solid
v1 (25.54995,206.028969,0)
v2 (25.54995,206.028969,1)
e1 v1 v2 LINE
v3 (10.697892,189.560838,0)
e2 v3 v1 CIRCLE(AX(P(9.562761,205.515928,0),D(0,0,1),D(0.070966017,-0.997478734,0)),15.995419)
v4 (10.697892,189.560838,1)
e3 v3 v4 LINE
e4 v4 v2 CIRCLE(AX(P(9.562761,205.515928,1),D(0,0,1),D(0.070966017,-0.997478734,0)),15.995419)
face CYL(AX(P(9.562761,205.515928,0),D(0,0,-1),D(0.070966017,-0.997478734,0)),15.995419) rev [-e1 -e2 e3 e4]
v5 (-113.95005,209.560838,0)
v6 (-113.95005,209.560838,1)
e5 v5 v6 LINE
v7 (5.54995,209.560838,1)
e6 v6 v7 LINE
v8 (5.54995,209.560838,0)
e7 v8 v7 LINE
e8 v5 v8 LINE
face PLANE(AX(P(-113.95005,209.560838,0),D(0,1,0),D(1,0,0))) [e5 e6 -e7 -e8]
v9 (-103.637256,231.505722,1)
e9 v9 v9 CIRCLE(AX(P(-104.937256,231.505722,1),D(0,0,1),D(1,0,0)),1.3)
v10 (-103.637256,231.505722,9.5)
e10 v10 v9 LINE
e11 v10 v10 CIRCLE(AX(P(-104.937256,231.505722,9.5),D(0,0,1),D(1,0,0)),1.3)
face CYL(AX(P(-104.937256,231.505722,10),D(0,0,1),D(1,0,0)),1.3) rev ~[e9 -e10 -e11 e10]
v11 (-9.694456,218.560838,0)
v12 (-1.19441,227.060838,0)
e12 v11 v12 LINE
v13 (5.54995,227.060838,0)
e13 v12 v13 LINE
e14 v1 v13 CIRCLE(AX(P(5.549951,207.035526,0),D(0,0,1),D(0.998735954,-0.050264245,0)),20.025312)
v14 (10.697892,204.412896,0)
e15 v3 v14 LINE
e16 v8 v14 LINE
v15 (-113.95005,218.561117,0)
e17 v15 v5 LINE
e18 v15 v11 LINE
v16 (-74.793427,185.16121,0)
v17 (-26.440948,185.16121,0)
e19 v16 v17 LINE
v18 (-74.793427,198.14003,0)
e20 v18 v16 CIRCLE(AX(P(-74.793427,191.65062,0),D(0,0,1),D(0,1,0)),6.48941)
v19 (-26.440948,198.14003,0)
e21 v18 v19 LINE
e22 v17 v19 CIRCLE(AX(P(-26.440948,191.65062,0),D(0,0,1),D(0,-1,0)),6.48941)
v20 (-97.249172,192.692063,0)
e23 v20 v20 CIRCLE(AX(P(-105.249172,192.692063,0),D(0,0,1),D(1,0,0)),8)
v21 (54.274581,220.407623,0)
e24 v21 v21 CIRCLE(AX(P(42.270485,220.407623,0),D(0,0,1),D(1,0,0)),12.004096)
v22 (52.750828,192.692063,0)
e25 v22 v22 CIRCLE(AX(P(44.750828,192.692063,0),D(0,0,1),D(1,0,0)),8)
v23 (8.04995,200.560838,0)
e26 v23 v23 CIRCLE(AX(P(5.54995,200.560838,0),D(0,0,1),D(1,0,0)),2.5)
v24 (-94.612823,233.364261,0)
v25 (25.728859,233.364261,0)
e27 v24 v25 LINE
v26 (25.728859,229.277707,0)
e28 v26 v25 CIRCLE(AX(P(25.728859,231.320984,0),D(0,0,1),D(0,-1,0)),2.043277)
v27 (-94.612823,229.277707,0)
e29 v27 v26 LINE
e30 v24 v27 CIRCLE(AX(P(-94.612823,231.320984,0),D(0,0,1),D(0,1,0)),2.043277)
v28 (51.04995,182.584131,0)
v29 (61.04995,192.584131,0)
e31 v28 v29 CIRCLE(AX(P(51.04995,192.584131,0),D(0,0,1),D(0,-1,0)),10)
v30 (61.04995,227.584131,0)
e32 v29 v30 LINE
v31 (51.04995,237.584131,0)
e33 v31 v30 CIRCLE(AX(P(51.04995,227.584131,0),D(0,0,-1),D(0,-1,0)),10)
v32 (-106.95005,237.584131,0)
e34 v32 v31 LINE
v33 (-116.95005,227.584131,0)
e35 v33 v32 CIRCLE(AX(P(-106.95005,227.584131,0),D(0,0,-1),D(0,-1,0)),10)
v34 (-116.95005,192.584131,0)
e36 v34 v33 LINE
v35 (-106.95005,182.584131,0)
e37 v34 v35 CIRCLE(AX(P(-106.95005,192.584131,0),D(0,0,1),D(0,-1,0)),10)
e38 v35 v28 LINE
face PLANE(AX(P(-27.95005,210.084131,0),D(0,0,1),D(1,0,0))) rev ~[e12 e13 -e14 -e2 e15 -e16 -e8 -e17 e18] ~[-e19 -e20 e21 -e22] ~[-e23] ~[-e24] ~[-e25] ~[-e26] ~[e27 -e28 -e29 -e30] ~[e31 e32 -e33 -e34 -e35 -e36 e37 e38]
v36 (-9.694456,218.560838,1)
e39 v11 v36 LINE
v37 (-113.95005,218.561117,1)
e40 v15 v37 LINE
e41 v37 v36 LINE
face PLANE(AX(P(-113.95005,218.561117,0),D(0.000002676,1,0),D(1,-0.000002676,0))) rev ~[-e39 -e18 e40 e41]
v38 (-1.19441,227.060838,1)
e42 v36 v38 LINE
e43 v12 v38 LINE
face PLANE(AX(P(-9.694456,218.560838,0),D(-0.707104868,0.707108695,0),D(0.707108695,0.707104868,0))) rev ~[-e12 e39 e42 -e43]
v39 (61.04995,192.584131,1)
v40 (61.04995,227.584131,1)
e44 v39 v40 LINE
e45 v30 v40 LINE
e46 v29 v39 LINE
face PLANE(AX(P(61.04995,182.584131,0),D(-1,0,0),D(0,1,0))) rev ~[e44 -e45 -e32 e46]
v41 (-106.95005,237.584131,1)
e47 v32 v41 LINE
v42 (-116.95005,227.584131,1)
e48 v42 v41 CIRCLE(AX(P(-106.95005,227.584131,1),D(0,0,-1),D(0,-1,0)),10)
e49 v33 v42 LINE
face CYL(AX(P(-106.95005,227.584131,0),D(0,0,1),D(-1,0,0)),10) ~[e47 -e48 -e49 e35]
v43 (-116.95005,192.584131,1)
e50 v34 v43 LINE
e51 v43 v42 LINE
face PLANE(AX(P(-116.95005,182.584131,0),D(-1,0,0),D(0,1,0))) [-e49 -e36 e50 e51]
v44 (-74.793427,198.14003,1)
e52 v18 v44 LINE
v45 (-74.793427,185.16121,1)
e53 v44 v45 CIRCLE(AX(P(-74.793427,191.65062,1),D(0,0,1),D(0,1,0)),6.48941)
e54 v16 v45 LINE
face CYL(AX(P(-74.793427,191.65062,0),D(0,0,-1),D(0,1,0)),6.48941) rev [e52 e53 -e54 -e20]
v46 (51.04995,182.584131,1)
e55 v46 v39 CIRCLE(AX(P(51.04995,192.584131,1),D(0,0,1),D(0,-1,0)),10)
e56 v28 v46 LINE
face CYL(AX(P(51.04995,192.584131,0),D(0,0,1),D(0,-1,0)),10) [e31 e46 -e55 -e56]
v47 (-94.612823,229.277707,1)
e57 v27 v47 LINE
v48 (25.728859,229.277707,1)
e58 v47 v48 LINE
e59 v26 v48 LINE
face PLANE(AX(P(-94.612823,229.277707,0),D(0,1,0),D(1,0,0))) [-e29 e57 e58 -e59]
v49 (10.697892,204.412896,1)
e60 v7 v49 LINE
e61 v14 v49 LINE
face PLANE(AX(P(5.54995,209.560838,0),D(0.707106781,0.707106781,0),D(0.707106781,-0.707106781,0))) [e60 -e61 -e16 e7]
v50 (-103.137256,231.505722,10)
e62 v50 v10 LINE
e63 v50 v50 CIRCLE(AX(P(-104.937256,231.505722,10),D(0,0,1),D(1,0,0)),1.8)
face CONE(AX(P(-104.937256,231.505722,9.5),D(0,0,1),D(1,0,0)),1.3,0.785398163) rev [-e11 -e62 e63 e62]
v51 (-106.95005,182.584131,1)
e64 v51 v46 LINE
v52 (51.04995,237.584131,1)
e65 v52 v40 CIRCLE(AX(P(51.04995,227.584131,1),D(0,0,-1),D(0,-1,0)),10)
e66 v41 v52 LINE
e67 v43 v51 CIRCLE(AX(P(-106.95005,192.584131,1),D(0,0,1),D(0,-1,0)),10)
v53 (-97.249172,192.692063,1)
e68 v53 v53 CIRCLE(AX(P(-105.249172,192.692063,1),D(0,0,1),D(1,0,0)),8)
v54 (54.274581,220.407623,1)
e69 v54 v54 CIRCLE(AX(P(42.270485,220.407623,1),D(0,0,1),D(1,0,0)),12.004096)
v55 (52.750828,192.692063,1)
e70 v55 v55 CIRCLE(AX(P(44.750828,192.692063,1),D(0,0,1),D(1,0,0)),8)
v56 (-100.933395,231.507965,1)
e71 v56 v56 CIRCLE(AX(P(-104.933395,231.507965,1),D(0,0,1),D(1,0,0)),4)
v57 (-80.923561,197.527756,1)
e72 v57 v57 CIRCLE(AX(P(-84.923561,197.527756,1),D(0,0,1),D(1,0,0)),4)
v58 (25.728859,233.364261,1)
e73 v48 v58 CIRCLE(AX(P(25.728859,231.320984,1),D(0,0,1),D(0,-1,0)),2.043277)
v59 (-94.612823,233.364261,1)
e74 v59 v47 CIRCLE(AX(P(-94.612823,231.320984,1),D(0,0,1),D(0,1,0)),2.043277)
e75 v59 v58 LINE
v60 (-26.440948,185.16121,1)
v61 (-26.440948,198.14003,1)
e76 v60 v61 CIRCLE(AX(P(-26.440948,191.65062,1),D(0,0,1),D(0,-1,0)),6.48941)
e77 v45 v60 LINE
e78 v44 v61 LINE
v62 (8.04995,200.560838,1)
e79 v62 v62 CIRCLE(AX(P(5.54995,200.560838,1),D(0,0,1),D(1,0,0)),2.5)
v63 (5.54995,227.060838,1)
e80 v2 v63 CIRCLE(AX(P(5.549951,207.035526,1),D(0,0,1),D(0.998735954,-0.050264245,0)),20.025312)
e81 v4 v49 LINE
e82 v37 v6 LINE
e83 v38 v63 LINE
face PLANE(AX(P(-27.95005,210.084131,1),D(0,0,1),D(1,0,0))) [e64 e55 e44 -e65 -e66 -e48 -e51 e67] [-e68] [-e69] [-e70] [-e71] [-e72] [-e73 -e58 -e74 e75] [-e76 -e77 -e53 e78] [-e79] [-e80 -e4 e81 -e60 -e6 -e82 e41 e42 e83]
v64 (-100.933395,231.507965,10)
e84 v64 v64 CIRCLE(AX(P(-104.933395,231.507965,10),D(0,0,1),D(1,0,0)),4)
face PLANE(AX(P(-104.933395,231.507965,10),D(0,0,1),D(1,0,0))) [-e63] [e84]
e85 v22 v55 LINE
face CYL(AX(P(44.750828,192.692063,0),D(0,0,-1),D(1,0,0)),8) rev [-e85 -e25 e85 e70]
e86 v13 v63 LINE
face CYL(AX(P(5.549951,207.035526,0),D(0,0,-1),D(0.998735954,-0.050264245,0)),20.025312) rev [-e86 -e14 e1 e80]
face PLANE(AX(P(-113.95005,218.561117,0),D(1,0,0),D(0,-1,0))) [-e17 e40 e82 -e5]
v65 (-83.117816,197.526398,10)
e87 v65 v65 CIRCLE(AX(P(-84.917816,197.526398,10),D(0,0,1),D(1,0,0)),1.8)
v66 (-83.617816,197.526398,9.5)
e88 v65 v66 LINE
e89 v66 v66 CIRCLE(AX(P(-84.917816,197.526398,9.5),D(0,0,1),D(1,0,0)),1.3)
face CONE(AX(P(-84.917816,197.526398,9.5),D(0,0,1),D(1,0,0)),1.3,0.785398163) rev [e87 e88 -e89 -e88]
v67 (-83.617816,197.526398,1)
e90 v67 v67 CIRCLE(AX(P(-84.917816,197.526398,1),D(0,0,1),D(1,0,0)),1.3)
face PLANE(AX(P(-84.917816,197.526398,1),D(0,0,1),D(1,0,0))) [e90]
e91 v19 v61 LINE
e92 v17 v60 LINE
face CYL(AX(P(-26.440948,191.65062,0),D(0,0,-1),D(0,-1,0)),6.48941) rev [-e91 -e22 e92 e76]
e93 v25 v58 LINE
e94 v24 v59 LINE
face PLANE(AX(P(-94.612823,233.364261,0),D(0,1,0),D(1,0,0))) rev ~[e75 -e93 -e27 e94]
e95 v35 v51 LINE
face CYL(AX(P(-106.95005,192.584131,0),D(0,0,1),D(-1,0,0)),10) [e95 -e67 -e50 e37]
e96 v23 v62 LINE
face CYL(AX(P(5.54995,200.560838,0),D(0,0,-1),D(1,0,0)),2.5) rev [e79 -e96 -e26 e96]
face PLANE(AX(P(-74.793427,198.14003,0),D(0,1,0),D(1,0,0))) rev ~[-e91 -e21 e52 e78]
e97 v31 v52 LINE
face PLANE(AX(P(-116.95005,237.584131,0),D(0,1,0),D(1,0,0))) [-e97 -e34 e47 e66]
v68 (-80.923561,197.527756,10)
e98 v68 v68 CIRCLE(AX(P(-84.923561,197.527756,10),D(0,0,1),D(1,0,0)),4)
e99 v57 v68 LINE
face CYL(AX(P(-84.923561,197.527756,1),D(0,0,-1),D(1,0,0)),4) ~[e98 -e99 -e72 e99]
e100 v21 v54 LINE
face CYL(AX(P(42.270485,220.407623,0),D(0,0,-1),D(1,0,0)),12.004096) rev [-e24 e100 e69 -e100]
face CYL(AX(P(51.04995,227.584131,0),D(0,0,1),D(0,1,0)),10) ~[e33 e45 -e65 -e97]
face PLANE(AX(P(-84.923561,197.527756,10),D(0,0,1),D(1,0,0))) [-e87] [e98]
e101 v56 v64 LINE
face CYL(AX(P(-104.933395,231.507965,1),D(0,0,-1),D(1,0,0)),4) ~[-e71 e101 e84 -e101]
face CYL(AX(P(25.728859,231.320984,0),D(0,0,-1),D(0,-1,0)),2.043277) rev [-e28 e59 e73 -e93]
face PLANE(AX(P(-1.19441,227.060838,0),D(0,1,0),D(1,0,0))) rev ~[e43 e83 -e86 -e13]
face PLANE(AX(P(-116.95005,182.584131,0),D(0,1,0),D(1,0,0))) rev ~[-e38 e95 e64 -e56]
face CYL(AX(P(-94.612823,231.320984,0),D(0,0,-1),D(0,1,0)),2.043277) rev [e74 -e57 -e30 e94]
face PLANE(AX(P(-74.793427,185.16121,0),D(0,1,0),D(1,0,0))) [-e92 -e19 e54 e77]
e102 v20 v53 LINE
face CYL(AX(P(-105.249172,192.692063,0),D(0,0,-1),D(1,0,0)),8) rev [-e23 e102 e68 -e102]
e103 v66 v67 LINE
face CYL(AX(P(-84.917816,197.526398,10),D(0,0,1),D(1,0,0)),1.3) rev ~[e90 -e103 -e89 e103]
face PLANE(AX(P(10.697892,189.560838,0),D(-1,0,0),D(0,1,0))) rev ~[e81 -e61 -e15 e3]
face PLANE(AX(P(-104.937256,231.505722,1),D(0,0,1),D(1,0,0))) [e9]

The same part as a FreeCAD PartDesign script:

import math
import FreeCAD as App
import Part
import Sketcher
Q = App.Units.Quantity


def edges_at(feature, points):
    """Names of the edges that pass closest to the given points."""
    edges = feature.Shape.Edges
    near = lambda p: min(range(len(edges)), key=lambda i: edges[i].distToShape(Part.Vertex(*p))[0])
    return sorted({f"Edge{near(p) + 1}" for p in points})

doc = App.newDocument("Part")
body = doc.addObject("PartDesign::Body", "Body")

# Sketch on XY plane
sketch1 = doc.addObject("Sketcher::SketchObject", "Sketch")
body.addObject(sketch1)
sketch1.AttachmentSupport = (doc.XY_Plane, [""])
sketch1.MapMode = "FlatFace"
sketch1.addGeometry([
    Part.LineSegment(App.Vector(-117, 237.6, 0), App.Vector(-117, 182.6, 0)),  # 0
    Part.LineSegment(App.Vector(-117, 182.6, 0), App.Vector(61, 182.6, 0)),  # 1
    Part.LineSegment(App.Vector(61, 182.6, 0), App.Vector(61, 237.6, 0)),  # 2
    Part.LineSegment(App.Vector(61, 237.6, 0), App.Vector(-117, 237.6, 0)),  # 3
    Part.Circle(App.Vector(-105.2, 192.7, 0), App.Vector(0, 0, 1), 8),  # 4
    Part.ArcOfCircle(Part.Circle(App.Vector(-74.8, 191.7, 0), App.Vector(0, 0, 1), 6.5), math.radians(90), math.radians(270)),  # 5
    Part.LineSegment(App.Vector(-74.8, 198.1, 0), App.Vector(-26.4, 198.1, 0)),  # 6
    Part.ArcOfCircle(Part.Circle(App.Vector(-26.4, 191.7, 0), App.Vector(0, 0, 1), 6.5), math.radians(-90), math.radians(90)),  # 7
    Part.LineSegment(App.Vector(-26.4, 185.2, 0), App.Vector(-74.8, 185.2, 0)),  # 8
    Part.ArcOfCircle(Part.Circle(App.Vector(5.5, 207, 0), App.Vector(0, 0, 1), 20), math.radians(-3), math.radians(90)),  # 9
    Part.ArcOfCircle(Part.Circle(App.Vector(9.6, 205.5, 0), App.Vector(0, 0, 1), 16), math.radians(-86), math.radians(2)),  # 10
    Part.LineSegment(App.Vector(10.7, 189.6, 0), App.Vector(10.7, 204.4, 0)),  # 11
    Part.LineSegment(App.Vector(10.7, 204.4, 0), App.Vector(5.5, 209.6, 0)),  # 12
    Part.LineSegment(App.Vector(5.5, 209.6, 0), App.Vector(-114, 209.6, 0)),  # 13
    Part.LineSegment(App.Vector(-114, 209.6, 0), App.Vector(-114, 218.6, 0)),  # 14
    Part.LineSegment(App.Vector(-114, 218.6, 0), App.Vector(-9.7, 218.6, 0)),  # 15
    Part.LineSegment(App.Vector(-9.7, 218.6, 0), App.Vector(-1.2, 227.1, 0)),  # 16
    Part.LineSegment(App.Vector(-1.2, 227.1, 0), App.Vector(5.5, 227.1, 0)),  # 17
    Part.Circle(App.Vector(44.8, 192.7, 0), App.Vector(0, 0, 1), 8),  # 18
    Part.Circle(App.Vector(5.5, 200.6, 0), App.Vector(0, 0, 1), 2.5),  # 19
    Part.ArcOfCircle(Part.Circle(App.Vector(-94.6, 231.3, 0), App.Vector(0, 0, 1), 2), math.radians(90), math.radians(270)),  # 20
    Part.LineSegment(App.Vector(-94.6, 233.4, 0), App.Vector(25.7, 233.4, 0)),  # 21
    Part.ArcOfCircle(Part.Circle(App.Vector(25.7, 231.3, 0), App.Vector(0, 0, 1), 2), math.radians(-90), math.radians(90)),  # 22
    Part.LineSegment(App.Vector(25.7, 229.3, 0), App.Vector(-94.6, 229.3, 0)),  # 23
    Part.Circle(App.Vector(42.3, 220.4, 0), App.Vector(0, 0, 1), 12),  # 24
], False)
sketch1.addConstraint([
    Sketcher.Constraint("Coincident", 0, 2, 1, 1),
    Sketcher.Constraint("Coincident", 1, 2, 2, 1),
    Sketcher.Constraint("Coincident", 2, 2, 3, 1),
    Sketcher.Constraint("Coincident", 3, 2, 0, 1),
    Sketcher.Constraint("Tangent", 5, 1, 6, 1),
    Sketcher.Constraint("Tangent", 6, 2, 7, 2),
    Sketcher.Constraint("Tangent", 7, 1, 8, 1),
    Sketcher.Constraint("Tangent", 8, 2, 5, 2),
    Sketcher.Constraint("Coincident", 9, 1, 10, 2),
    Sketcher.Constraint("Coincident", 10, 1, 11, 1),
    Sketcher.Constraint("Coincident", 11, 2, 12, 1),
    Sketcher.Constraint("Coincident", 12, 2, 13, 1),
    Sketcher.Constraint("Coincident", 13, 2, 14, 1),
    Sketcher.Constraint("Coincident", 14, 2, 15, 1),
    Sketcher.Constraint("Coincident", 15, 2, 16, 1),
    Sketcher.Constraint("Coincident", 16, 2, 17, 1),
    Sketcher.Constraint("Tangent", 17, 2, 9, 2),
    Sketcher.Constraint("Tangent", 20, 1, 21, 1),
    Sketcher.Constraint("Tangent", 21, 2, 22, 2),
    Sketcher.Constraint("Tangent", 22, 1, 23, 1),
    Sketcher.Constraint("Tangent", 23, 2, 20, 2),
    Sketcher.Constraint("Vertical", 0),
    Sketcher.Constraint("Horizontal", 1),
    Sketcher.Constraint("Vertical", 2),
    Sketcher.Constraint("Horizontal", 3),
    Sketcher.Constraint("Horizontal", 6),
    Sketcher.Constraint("Horizontal", 8),
    Sketcher.Constraint("Vertical", 11),
    Sketcher.Constraint("Horizontal", 13),
    Sketcher.Constraint("Vertical", 14),
    Sketcher.Constraint("Horizontal", 17),
    Sketcher.Constraint("Horizontal", 21),
    Sketcher.Constraint("Horizontal", 23),
    Sketcher.Constraint("Equal", 4, 18),
    Sketcher.Constraint("Horizontal", 4, 3, 18, 3),
    Sketcher.Constraint("Vertical", 9, 3, 19, 3),
    Sketcher.Constraint("Vertical", 19, 3, 12, 2),
    Sketcher.Constraint("Diameter", 4, Q("16 mm")),
    Sketcher.Constraint("Diameter", 19, Q("5 mm")),
    Sketcher.Constraint("DistanceX", 1, 1, 1, 2, Q("178 mm")),
    Sketcher.Constraint("DistanceY", 0, 2, 0, 1, Q("55 mm")),
    Sketcher.Constraint("Angle", 12, Q("135 deg")),
    Sketcher.Constraint("DistanceX", 13, 2, 13, 1, Q("119.5 mm")),
    Sketcher.Constraint("DistanceX", 4, 3, 18, 3, Q("150 mm")),
    Sketcher.Constraint("DistanceX", 9, 3, 9, 1, Q("19.999999 mm")),
    Sketcher.Constraint("DistanceY", 10, 1, 19, 3, Q("11 mm")),
    Sketcher.Constraint("DistanceY", 19, 3, 12, 2, Q("9 mm")),
    Sketcher.Constraint("DistanceX", 0, 2, 13, 2, Q("3 mm")),
    Sketcher.Constraint("DistanceY", 12, 2, 15, 2, Q("9 mm")),
    Sketcher.Constraint("DistanceY", 15, 2, 16, 2, Q("8.5 mm")),
    Sketcher.Constraint("Radius", 5, Q("6.48941 mm")),
    Sketcher.Constraint("Radius", 9, Q("20.025312 mm")),
    Sketcher.Constraint("Radius", 10, Q("15.995419 mm")),
    Sketcher.Constraint("Diameter", 24, Q("24.008192 mm")),
    Sketcher.Constraint("Radius", 20, Q("2.043277 mm")),
    Sketcher.Constraint("DistanceX", 6, 1, 6, 2, Q("48.352479 mm")),
    Sketcher.Constraint("DistanceX", 17, 1, 17, 2, Q("6.74436 mm")),
    Sketcher.Constraint("DistanceY", 14, 1, 14, 2, Q("9.000279 mm")),
    Sketcher.Constraint("DistanceX", 7, 3, 9, 3, Q("31.990899 mm")),
    Sketcher.Constraint("DistanceX", 10, 3, 22, 3, Q("16.166098 mm")),
    Sketcher.Constraint("DistanceY", 0, 2, 5, 1, Q("15.555899 mm")),
    Sketcher.Constraint("DistanceY", 6, 2, 10, 3, Q("7.375898 mm")),
    Sketcher.Constraint("DistanceX", 16, 2, 11, 2, Q("11.892302 mm")),
    Sketcher.Constraint("DistanceX", 21, 1, 21, 2, Q("120.341682 mm")),
    Sketcher.Constraint("DistanceX", 4, 3, -1, 1, Q("105.249172 mm")),
    Sketcher.Constraint("DistanceY", -1, 1, 5, 3, Q("191.65062 mm")),
    Sketcher.Constraint("DistanceX", -1, 1, 9, 3, Q("5.549951 mm")),
    Sketcher.Constraint("DistanceY", -1, 1, 20, 1, Q("233.364261 mm")),
    Sketcher.Constraint("DistanceY", 4, 3, 20, 3, Q("38.628921 mm")),
    Sketcher.Constraint("DistanceY", 24, 3, 22, 3, Q("10.913361 mm")),
    Sketcher.Constraint("Distance", 15, Q("104.255594 mm")),
    Sketcher.Constraint("DistanceX", -1, 1, 24, 3, Q("42.270485 mm")),
])
pad1 = doc.addObject("PartDesign::Pad", "Pad")
body.addObject(pad1)
pad1.Profile = sketch1
pad1.Length = 1

# Sketch on XY plane
sketch2 = doc.addObject("Sketcher::SketchObject", "Sketch001")
body.addObject(sketch2)
sketch2.AttachmentSupport = (doc.XY_Plane, [""])
sketch2.MapMode = "FlatFace"
sketch2.AttachmentOffset = App.Placement(App.Vector(0, 0, 1), App.Rotation())
sketch2.addGeometry([
    Part.Circle(App.Vector(-84.9, 197.5, 0), App.Vector(0, 0, 1), 4),
    Part.Circle(App.Vector(-104.9, 231.5, 0), App.Vector(0, 0, 1), 4),
], False)
sketch2.addConstraint([
    Sketcher.Constraint("Equal", 0, 1),
    Sketcher.Constraint("Diameter", 0, Q("8 mm")),
    Sketcher.Constraint("DistanceX", 0, 3, -1, 1, Q("84.923561 mm")),
    Sketcher.Constraint("DistanceY", 0, 3, 1, 3, Q("33.980209 mm")),
    Sketcher.Constraint("DistanceY", -1, 1, 0, 3, Q("197.527756 mm")),
    Sketcher.Constraint("DistanceX", 1, 3, -1, 1, Q("104.933395 mm")),
])
pad2 = doc.addObject("PartDesign::Pad", "Pad001")
body.addObject(pad2)
pad2.Profile = sketch2
pad2.Length = 9

# Sketch on XY plane
sketch3 = doc.addObject("Sketcher::SketchObject", "Sketch002")
body.addObject(sketch3)
sketch3.AttachmentSupport = (doc.XY_Plane, [""])
sketch3.MapMode = "FlatFace"
sketch3.AttachmentOffset = App.Placement(App.Vector(0, 0, 10), App.Rotation())
sketch3.addGeometry([
    Part.Circle(App.Vector(-84.9, 197.5, 0), App.Vector(0, 0, 1), 1.3),
    Part.Circle(App.Vector(-104.9, 231.5, 0), App.Vector(0, 0, 1), 1.3),
], False)
sketch3.addConstraint([
    Sketcher.Constraint("Equal", 0, 1),
    Sketcher.Constraint("Diameter", 0, Q("2.6 mm")),
    Sketcher.Constraint("DistanceY", -1, 1, 0, 3, Q("197.526398 mm")),
    Sketcher.Constraint("DistanceY", -1, 1, 1, 3, Q("231.505722 mm")),
    Sketcher.Constraint("DistanceX", 1, 3, 0, 3, Q("20.01944 mm")),
    Sketcher.Constraint("DistanceX", 0, 3, -1, 1, Q("84.917816 mm")),
])
pocket1 = doc.addObject("PartDesign::Pocket", "Pocket")
body.addObject(pocket1)
pocket1.Profile = sketch3
pocket1.Length = 9
doc.recompute()

fillet = doc.addObject("PartDesign::Fillet", "Fillet")
body.addObject(fillet)
fillet.Base = (pocket1, edges_at(pocket1, [(-116.95, 182.584, 0.5), (61.05, 182.584, 0.5)]))
fillet.Radius = 10
doc.recompute()

fillet2 = doc.addObject("PartDesign::Fillet", "Fillet001")
body.addObject(fillet2)
fillet2.Base = (fillet, edges_at(fillet, [(61.05, 237.584, 0.5), (-116.95, 237.584, 0.5)]))
fillet2.Radius = 10
doc.recompute()

chamfer = doc.addObject("PartDesign::Chamfer", "Chamfer")
body.addObject(chamfer)
chamfer.Base = (fillet2, edges_at(fillet2, [(-106.237, 231.506, 10), (-86.218, 197.526, 10)]))
chamfer.Size = 0.5

doc.recompute()
